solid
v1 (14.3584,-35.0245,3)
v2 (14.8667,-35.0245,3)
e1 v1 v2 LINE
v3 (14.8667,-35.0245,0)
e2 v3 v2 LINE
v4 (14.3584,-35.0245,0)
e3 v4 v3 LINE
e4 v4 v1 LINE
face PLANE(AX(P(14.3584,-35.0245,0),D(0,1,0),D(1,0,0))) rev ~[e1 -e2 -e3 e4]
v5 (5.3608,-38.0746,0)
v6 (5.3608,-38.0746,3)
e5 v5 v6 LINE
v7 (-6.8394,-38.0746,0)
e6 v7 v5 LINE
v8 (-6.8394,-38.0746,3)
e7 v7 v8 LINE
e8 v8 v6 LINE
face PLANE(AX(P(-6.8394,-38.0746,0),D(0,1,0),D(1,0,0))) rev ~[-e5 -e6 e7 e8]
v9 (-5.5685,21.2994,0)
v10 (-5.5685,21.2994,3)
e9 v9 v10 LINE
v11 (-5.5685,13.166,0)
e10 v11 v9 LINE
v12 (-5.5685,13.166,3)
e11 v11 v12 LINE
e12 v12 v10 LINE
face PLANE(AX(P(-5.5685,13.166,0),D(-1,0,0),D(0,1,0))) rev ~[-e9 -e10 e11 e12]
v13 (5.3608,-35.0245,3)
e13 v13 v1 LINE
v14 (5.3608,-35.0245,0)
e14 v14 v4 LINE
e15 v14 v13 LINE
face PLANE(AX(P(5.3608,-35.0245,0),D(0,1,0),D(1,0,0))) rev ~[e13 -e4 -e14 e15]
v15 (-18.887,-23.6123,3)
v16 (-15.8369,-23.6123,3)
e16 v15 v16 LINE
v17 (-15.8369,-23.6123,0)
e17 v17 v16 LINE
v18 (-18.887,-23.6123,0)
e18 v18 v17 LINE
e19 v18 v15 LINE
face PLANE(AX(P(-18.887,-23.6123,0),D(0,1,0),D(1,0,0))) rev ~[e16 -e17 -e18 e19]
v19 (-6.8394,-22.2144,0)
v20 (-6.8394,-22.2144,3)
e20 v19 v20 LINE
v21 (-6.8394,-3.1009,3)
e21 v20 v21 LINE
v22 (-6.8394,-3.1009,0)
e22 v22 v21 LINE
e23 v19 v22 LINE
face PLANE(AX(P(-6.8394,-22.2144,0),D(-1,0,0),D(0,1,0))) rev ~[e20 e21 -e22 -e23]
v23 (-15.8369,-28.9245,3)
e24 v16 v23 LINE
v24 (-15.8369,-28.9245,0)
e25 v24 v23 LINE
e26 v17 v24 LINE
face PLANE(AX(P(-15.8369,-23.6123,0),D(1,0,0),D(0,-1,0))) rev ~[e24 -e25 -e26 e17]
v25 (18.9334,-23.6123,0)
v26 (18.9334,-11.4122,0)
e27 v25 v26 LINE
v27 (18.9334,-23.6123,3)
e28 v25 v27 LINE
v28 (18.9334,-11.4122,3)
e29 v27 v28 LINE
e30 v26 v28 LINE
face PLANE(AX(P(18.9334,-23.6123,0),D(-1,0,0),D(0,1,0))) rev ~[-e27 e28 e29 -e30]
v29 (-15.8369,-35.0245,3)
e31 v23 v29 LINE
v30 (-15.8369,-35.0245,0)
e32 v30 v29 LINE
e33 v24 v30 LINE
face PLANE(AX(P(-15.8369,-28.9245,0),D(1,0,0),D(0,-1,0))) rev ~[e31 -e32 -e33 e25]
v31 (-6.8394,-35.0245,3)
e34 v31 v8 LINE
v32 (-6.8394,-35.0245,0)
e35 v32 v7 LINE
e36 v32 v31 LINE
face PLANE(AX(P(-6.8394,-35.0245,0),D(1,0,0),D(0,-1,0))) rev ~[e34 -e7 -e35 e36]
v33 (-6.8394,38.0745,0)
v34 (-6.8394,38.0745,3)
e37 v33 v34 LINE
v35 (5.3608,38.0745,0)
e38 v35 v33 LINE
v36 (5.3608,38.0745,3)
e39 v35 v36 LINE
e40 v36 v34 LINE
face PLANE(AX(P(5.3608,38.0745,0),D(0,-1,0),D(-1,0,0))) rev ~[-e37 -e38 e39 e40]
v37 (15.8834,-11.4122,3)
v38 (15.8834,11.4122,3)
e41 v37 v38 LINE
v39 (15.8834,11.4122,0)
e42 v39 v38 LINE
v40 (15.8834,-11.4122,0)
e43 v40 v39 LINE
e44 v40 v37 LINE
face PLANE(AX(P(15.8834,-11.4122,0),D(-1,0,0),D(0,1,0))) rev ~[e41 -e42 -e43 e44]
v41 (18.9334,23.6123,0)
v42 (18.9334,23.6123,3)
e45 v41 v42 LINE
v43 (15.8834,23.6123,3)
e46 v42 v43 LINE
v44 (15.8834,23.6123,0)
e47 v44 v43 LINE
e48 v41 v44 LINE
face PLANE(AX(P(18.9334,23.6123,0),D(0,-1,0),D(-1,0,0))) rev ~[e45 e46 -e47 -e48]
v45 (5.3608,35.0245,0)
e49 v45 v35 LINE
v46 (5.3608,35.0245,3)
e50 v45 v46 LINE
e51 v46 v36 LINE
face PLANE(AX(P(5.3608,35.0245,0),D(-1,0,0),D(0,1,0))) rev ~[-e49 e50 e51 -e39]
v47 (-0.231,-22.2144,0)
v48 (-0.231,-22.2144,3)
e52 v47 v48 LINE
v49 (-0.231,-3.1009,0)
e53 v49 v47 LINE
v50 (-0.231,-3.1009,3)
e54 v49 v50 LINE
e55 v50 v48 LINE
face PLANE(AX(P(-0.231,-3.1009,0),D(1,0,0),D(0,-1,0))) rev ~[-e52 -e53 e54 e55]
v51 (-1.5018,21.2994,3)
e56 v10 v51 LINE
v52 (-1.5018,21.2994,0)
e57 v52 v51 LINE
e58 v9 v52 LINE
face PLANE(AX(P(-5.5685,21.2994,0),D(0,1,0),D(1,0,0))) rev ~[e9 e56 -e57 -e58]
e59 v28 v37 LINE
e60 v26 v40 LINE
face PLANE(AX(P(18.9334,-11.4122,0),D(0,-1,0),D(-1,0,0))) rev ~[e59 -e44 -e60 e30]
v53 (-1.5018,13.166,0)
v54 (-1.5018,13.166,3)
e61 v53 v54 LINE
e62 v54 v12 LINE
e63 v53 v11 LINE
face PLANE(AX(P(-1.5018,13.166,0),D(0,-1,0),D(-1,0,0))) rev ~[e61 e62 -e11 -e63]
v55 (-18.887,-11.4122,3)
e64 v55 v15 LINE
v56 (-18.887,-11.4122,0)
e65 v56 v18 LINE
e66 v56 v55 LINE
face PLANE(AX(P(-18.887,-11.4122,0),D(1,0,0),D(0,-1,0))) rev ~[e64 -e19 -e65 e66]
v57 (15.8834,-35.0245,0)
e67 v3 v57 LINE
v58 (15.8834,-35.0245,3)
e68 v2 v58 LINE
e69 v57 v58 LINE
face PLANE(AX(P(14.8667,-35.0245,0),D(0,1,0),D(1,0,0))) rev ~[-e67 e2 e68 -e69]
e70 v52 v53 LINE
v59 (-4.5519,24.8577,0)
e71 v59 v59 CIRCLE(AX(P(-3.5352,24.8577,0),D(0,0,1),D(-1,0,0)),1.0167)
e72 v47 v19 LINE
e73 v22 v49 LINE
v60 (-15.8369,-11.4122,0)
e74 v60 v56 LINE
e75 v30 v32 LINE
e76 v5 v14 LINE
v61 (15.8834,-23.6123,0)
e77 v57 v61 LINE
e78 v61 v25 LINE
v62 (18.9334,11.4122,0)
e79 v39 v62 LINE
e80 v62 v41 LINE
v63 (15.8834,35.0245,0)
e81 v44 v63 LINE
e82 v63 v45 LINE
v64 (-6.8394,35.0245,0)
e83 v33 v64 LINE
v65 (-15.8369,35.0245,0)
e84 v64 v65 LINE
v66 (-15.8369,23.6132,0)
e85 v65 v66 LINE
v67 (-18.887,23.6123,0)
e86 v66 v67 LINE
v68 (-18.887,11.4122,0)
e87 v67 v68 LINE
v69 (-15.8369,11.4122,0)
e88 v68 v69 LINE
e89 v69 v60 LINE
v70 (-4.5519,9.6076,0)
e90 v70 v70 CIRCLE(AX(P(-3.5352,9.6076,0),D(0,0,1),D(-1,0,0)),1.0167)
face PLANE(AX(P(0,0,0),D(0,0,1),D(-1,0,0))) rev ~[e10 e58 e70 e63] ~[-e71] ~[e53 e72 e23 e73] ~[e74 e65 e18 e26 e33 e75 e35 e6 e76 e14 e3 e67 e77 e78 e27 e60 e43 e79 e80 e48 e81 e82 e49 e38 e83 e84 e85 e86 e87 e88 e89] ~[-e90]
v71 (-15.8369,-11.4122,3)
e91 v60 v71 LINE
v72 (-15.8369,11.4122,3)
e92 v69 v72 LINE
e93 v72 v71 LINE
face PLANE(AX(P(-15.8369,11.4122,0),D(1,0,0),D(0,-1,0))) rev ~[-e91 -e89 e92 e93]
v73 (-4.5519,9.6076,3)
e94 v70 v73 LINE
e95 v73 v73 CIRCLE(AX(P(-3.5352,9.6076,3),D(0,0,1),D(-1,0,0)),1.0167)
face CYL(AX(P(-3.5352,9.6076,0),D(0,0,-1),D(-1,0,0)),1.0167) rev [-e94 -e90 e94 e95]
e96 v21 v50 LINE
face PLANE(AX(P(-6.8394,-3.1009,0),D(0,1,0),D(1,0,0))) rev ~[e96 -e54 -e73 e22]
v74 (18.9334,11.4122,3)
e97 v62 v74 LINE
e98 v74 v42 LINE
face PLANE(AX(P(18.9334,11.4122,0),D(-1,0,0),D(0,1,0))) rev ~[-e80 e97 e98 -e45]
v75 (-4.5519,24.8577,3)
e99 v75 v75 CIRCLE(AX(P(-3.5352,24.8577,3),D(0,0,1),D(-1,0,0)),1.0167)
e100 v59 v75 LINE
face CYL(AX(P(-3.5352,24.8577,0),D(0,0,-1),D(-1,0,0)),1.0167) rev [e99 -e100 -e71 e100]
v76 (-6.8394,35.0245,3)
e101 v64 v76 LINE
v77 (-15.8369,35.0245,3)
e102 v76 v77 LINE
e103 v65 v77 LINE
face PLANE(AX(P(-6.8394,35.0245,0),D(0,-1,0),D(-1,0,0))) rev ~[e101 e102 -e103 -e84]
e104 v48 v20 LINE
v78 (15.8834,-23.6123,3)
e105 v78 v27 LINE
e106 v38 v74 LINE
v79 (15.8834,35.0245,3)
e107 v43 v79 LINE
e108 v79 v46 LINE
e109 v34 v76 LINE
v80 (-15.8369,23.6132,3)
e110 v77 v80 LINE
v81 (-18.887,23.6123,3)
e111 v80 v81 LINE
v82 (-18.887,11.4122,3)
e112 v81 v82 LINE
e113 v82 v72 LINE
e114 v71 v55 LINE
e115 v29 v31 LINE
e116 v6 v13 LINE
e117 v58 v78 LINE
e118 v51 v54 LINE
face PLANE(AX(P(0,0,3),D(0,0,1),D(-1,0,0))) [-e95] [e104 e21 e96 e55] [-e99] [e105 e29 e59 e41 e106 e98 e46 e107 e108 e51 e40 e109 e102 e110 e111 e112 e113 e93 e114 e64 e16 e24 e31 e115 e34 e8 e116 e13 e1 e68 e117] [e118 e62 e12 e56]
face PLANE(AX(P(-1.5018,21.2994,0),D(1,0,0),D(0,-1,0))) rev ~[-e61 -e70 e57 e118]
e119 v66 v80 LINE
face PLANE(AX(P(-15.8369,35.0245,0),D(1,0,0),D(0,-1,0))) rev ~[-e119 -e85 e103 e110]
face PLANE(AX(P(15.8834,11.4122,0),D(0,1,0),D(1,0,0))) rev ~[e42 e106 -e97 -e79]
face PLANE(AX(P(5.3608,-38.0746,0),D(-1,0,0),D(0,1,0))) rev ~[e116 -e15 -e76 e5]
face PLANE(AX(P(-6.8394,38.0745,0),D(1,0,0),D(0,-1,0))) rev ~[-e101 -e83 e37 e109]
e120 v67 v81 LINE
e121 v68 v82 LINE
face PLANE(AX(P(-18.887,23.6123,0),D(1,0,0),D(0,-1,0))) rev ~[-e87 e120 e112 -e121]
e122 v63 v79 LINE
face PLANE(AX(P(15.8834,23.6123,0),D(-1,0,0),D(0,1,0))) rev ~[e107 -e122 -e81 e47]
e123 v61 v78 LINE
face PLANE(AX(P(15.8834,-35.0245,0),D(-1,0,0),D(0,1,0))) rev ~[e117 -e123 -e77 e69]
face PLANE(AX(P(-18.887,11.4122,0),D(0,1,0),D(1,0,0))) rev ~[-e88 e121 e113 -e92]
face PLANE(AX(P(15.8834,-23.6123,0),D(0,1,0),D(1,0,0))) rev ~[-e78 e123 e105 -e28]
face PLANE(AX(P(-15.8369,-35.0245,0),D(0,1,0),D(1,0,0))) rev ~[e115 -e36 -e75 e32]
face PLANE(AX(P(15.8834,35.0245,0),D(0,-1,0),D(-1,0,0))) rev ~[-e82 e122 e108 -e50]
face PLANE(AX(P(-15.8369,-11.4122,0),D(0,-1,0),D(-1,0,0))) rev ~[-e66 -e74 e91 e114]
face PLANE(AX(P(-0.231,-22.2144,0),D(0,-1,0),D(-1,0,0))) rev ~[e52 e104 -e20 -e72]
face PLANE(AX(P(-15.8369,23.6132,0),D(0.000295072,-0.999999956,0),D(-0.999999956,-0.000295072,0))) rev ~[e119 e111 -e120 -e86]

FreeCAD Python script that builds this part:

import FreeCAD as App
import Part
import Sketcher


def add_polygon(sketch, points):
    """Adds a closed chain of lines whose ends are joined by coincident constraints."""
    first, n = sketch.GeometryCount, len(points)
    for a, b in zip(points, points[1:] + points[:1]):
        sketch.addGeometry(Part.LineSegment(App.Vector(*a, 0), App.Vector(*b, 0)), False)
    for i in range(n):
        sketch.addConstraint(Sketcher.Constraint("Coincident", first + i, 2, first + (i + 1) % n, 1))

doc = App.newDocument("Part")
body = doc.addObject("PartDesign::Body", "Body")

# Sketch on XY plane
sketch1 = body.newObject("Sketcher::SketchObject", "Sketch")
sketch1.AttachmentSupport = (doc.getObject("XY_Plane"), [""])
sketch1.MapMode = "FlatFace"
add_polygon(sketch1, [(15.8834, -11.4122), (15.8834, 11.4122), (18.9334, 11.4122), (18.9334, 23.6123), (15.8834, 23.6123), (15.8834, 35.0245), (5.3608, 35.0245), (5.3608, 38.0745), (-6.8394, 38.0745), (-6.8394, 35.0245), (-15.8369, 35.0245), (-15.8369, 23.6132), (-18.887, 23.6123), (-18.887, 11.4122), (-15.8369, 11.4122), (-15.8369, -11.4122), (-18.887, -11.4122), (-18.887, -23.6123), (-15.8369, -23.6123), (-15.8369, -35.0245), (-6.8394, -35.0245), (-6.8394, -38.0746), (5.3608, -38.0746), (5.3608, -35.0245), (15.8834, -35.0245), (15.8834, -23.6123), (18.9334, -23.6123), (18.9334, -11.4122)])  # lines 0-27
sketch1.addGeometry(Part.Circle(App.Vector(-3.5352, 24.8577, 0), App.Vector(0, 0, 1), 1.0167), False)  # 28
add_polygon(sketch1, [(-5.5685, 13.166), (-5.5685, 21.2994), (-1.5018, 21.2994), (-1.5018, 13.166)])  # lines 29-32
sketch1.addGeometry(Part.Circle(App.Vector(-3.5352, 9.6076, 0), App.Vector(0, 0, 1), 1.0167), False)  # 33
add_polygon(sketch1, [(-6.8394, -3.1009), (-0.231, -3.1009), (-0.231, -22.2144), (-6.8394, -22.2144)])  # lines 34-37
sketch1.addConstraint(Sketcher.Constraint("Vertical", 0))
sketch1.addConstraint(Sketcher.Constraint("Horizontal", 1))
sketch1.addConstraint(Sketcher.Constraint("Vertical", 2))
sketch1.addConstraint(Sketcher.Constraint("Horizontal", 3))
sketch1.addConstraint(Sketcher.Constraint("Vertical", 4))
sketch1.addConstraint(Sketcher.Constraint("Horizontal", 5))
sketch1.addConstraint(Sketcher.Constraint("Vertical", 6))
sketch1.addConstraint(Sketcher.Constraint("Horizontal", 7))
sketch1.addConstraint(Sketcher.Constraint("Vertical", 8))
sketch1.addConstraint(Sketcher.Constraint("Horizontal", 9))
sketch1.addConstraint(Sketcher.Constraint("Vertical", 10))
sketch1.addConstraint(Sketcher.Constraint("Vertical", 12))
sketch1.addConstraint(Sketcher.Constraint("Horizontal", 13))
sketch1.addConstraint(Sketcher.Constraint("Vertical", 14))
sketch1.addConstraint(Sketcher.Constraint("Horizontal", 15))
sketch1.addConstraint(Sketcher.Constraint("Vertical", 16))
sketch1.addConstraint(Sketcher.Constraint("Horizontal", 17))
sketch1.addConstraint(Sketcher.Constraint("Vertical", 18))
sketch1.addConstraint(Sketcher.Constraint("Horizontal", 19))
sketch1.addConstraint(Sketcher.Constraint("Vertical", 20))
sketch1.addConstraint(Sketcher.Constraint("Horizontal", 21))
sketch1.addConstraint(Sketcher.Constraint("Vertical", 22))
sketch1.addConstraint(Sketcher.Constraint("Horizontal", 23))
sketch1.addConstraint(Sketcher.Constraint("Vertical", 24))
sketch1.addConstraint(Sketcher.Constraint("Horizontal", 25))
sketch1.addConstraint(Sketcher.Constraint("Vertical", 26))
sketch1.addConstraint(Sketcher.Constraint("Horizontal", 27))
sketch1.addConstraint(Sketcher.Constraint("Vertical", 29))
sketch1.addConstraint(Sketcher.Constraint("Horizontal", 30))
sketch1.addConstraint(Sketcher.Constraint("Vertical", 31))
sketch1.addConstraint(Sketcher.Constraint("Horizontal", 32))
sketch1.addConstraint(Sketcher.Constraint("Horizontal", 34))
sketch1.addConstraint(Sketcher.Constraint("Vertical", 35))
sketch1.addConstraint(Sketcher.Constraint("Horizontal", 36))
sketch1.addConstraint(Sketcher.Constraint("Vertical", 37))
sketch1.addConstraint(Sketcher.Constraint("Equal", 28, 33))
sketch1.addConstraint(Sketcher.Constraint("Symmetric", 12, 2, 15, 2, -1))
sketch1.addConstraint(Sketcher.Constraint("Symmetric", 9, 2, 18, 2, -1))
sketch1.addConstraint(Sketcher.Constraint("Symmetric", 7, 2, 20, 2, -1))
sketch1.addConstraint(Sketcher.Constraint("Symmetric", 5, 2, 22, 2, -1))
sketch1.addConstraint(Sketcher.Constraint("Symmetric", 3, 2, 24, 2, -1))
sketch1.addConstraint(Sketcher.Constraint("Symmetric", 1, 2, 26, 2, -1))
sketch1.addConstraint(Sketcher.Constraint("Horizontal", 5, 2, 8, 2))
sketch1.addConstraint(Sketcher.Constraint("Horizontal", 3, 2, 11, 2))
sketch1.addConstraint(Sketcher.Constraint("Horizontal", 1, 2, 12, 2))
sketch1.addConstraint(Sketcher.Constraint("Horizontal", 17, 2, 24, 2))
sketch1.addConstraint(Sketcher.Constraint("Vertical", 28, 3, 33, 3))
sketch1.addConstraint(Sketcher.Constraint("Vertical", 0, 2, 3, 2))
sketch1.addConstraint(Sketcher.Constraint("Vertical", 10, 2, 13, 2))
sketch1.addConstraint(Sketcher.Constraint("Vertical", 20, 2, 36, 2))
sketch1.addConstraint(Sketcher.Constraint("Equal", 3, 13))
sketch1.addConstraint(Sketcher.Constraint("Equal", 21, 2))
sketch1.addConstraint(Sketcher.Constraint("Equal", 27, 6))
sketch1.addConstraint(Sketcher.Constraint("DistanceY", 2, 1, 2, 2, 12.2))
sketch1.addConstraint(Sketcher.Constraint("Diameter", 28, 2.0334))
sketch1.addConstraint(Sketcher.Constraint("DistanceX", 1, 1, 1, 2, 3.05))
sketch1.addConstraint(Sketcher.Constraint("DistanceY", 33, 3, 28, 3, 15.25))
sketch1.addConstraint(Sketcher.Constraint("DistanceY", 16, 2, 33, 3, 33.22))
sketch1.addConstraint(Sketcher.Constraint("DistanceY", 22, 2, 35, 2, 12.81))
sketch1.addConstraint(Sketcher.Constraint("DistanceX", 5, 2, 5, 1, 10.5226))
sketch1.addConstraint(Sketcher.Constraint("DistanceX", 9, 2, 9, 1, 8.9975))
sketch1.addConstraint(Sketcher.Constraint("DistanceX", 30, 1, 30, 2, 4.0667))
sketch1.addConstraint(Sketcher.Constraint("DistanceX", 34, 1, 34, 2, 6.6084))
sketch1.addConstraint(Sketcher.Constraint("DistanceY", 0, 1, 0, 2, 22.8244))
sketch1.addConstraint(Sketcher.Constraint("DistanceY", 4, 1, 4, 2, 11.4122))
sketch1.addConstraint(Sketcher.Constraint("DistanceY", 10, 2, 10, 1, 11.4113))
sketch1.addConstraint(Sketcher.Constraint("DistanceY", 29, 1, 29, 2, 8.1334))
sketch1.addConstraint(Sketcher.Constraint("DistanceY", 35, 2, 35, 1, 19.1135))
sketch1.addConstraint(Sketcher.Constraint("DistanceX", 9, 2, -1, 1, 15.837))
sketch1.addConstraint(Sketcher.Constraint("DistanceY", -1, 1, 31, 2, 13.166))
sketch1.addConstraint(Sketcher.Constraint("DistanceX", 28, 3, 5, 2, 8.896))
sketch1.addConstraint(Sketcher.Constraint("DistanceX", 8, 2, 29, 2, 1.271))
pad1 = body.newObject("PartDesign::Pad", "Pad")
pad1.Profile = sketch1
pad1.Length = 3

doc.recompute()
